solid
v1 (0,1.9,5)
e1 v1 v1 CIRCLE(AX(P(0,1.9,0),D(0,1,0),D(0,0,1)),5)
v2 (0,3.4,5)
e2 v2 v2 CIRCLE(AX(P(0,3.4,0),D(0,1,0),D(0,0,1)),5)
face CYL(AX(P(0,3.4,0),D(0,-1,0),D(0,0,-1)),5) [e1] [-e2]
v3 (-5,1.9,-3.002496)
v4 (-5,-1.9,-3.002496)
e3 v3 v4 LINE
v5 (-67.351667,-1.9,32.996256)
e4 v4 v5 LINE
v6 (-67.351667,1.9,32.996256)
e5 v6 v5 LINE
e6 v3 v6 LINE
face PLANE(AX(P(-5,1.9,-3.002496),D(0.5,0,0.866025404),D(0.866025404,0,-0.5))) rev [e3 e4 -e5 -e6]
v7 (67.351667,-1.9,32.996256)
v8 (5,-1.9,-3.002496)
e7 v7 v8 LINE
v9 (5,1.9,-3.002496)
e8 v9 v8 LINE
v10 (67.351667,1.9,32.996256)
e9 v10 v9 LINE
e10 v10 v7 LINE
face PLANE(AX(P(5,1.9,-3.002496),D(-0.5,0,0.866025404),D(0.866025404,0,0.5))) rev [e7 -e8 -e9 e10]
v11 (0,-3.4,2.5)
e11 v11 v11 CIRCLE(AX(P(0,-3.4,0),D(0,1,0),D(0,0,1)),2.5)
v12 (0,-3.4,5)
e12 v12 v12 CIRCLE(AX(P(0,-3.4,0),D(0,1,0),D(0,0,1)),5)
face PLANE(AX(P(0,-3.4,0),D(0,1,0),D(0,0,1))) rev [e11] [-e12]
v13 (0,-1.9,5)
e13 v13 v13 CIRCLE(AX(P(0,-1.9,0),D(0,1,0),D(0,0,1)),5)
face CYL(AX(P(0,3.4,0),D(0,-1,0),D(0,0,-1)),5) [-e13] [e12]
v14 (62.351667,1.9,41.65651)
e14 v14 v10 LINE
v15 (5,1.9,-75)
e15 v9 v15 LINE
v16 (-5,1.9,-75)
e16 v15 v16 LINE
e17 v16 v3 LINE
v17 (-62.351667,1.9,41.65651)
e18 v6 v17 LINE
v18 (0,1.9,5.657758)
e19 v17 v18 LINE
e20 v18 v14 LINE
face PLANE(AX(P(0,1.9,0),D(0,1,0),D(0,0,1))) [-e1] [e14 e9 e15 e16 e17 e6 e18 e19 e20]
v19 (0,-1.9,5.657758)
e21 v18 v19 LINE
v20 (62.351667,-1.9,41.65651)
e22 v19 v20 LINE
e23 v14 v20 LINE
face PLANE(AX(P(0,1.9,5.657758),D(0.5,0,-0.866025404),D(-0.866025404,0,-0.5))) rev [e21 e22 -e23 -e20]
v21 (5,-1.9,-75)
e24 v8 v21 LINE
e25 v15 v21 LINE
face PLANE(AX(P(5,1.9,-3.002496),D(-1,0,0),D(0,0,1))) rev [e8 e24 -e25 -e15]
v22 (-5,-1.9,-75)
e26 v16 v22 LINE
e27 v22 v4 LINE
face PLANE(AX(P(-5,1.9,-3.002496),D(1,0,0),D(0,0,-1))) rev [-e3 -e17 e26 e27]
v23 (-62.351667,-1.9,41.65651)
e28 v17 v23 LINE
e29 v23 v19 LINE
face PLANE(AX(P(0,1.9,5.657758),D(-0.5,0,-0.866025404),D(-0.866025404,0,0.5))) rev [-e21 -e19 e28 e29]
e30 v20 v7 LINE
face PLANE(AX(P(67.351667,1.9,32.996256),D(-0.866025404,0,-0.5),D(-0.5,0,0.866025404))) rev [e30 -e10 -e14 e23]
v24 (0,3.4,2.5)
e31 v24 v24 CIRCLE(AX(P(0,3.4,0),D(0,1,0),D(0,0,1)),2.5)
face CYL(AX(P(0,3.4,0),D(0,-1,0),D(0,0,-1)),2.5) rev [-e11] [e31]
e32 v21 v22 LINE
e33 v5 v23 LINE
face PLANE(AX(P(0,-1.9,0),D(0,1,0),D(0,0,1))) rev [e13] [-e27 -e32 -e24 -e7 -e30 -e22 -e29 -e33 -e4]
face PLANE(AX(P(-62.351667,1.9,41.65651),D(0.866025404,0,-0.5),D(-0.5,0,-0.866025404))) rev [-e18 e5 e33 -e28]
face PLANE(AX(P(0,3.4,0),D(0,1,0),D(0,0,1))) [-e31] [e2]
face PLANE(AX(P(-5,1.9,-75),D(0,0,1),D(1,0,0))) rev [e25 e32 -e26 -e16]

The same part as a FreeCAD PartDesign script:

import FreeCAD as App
import Part
import Sketcher
Q = App.Units.Quantity

doc = App.newDocument("Part")
body = doc.addObject("PartDesign::Body", "Body")

sketch1 = body.newObject("Sketcher::SketchObject", "Sketch")
sketch1.AttachmentSupport = (doc.getObject("XZ_Plane"), [""])
sketch1.MapMode = "FlatFace"
sketch1.addGeometry(Part.Circle(App.Vector(0, 0, 0), App.Vector(0, 0, 1), 5), False)
sketch1.addGeometry(Part.Circle(App.Vector(0, 0, 0), App.Vector(0, 0, 1), 2.5), False)
sketch1.addConstraint(Sketcher.Constraint("Coincident", 0, 3, -1, 1))
sketch1.addConstraint(Sketcher.Constraint("Coincident", 1, 3, -1, 1))
sketch1.addConstraint(Sketcher.Constraint("Diameter", 0, Q("10 mm")))
sketch1.addConstraint(Sketcher.Constraint("Diameter", 1, Q("5 mm")))
pad1 = body.newObject("PartDesign::Pad", "Pad")
pad1.Profile = sketch1
pad1.Length = 6.8
pad1.Midplane = True

sketch2 = body.newObject("Sketcher::SketchObject", "Sketch001")
sketch2.AttachmentSupport = (doc.getObject("XZ_Plane"), [""])
sketch2.MapMode = "FlatFace"
sketch2.addGeometry(Part.LineSegment(App.Vector(5, -3, 0), App.Vector(5, -75, 0)), False)
sketch2.addGeometry(Part.LineSegment(App.Vector(5, -75, 0), App.Vector(-5, -75, 0)), False)
sketch2.addGeometry(Part.LineSegment(App.Vector(-5, -75, 0), App.Vector(-5, -3, 0)), False)
sketch2.addGeometry(Part.LineSegment(App.Vector(-5, -3, 0), App.Vector(-67, 33, 0)), False)
sketch2.addGeometry(Part.LineSegment(App.Vector(-67, 33, 0), App.Vector(-62, 42, 0)), False)
sketch2.addGeometry(Part.LineSegment(App.Vector(-62, 42, 0), App.Vector(0, 6, 0)), False)
sketch2.addGeometry(Part.LineSegment(App.Vector(0, 6, 0), App.Vector(62, 42, 0)), False)
sketch2.addGeometry(Part.LineSegment(App.Vector(62, 42, 0), App.Vector(67, 33, 0)), False)
sketch2.addGeometry(Part.LineSegment(App.Vector(67, 33, 0), App.Vector(5, -3, 0)), False)
sketch2.addGeometry(Part.Circle(App.Vector(0, 0, 0), App.Vector(0, 0, 1), 5), False)
sketch2.addConstraint(Sketcher.Constraint("Coincident", 0, 2, 1, 1))
sketch2.addConstraint(Sketcher.Constraint("Coincident", 1, 2, 2, 1))
sketch2.addConstraint(Sketcher.Constraint("Coincident", 2, 2, 3, 1))
sketch2.addConstraint(Sketcher.Constraint("Coincident", 3, 2, 4, 1))
sketch2.addConstraint(Sketcher.Constraint("Coincident", 4, 2, 5, 1))
sketch2.addConstraint(Sketcher.Constraint("Coincident", 5, 2, 6, 1))
sketch2.addConstraint(Sketcher.Constraint("Coincident", 6, 2, 7, 1))
sketch2.addConstraint(Sketcher.Constraint("Coincident", 7, 2, 8, 1))
sketch2.addConstraint(Sketcher.Constraint("Coincident", 8, 2, 0, 1))
sketch2.addConstraint(Sketcher.Constraint("Vertical", 0))
sketch2.addConstraint(Sketcher.Constraint("Horizontal", 1))
sketch2.addConstraint(Sketcher.Constraint("Vertical", 2))
sketch2.addConstraint(Sketcher.Constraint("Coincident", 9, 3, -1, 1))
sketch2.addConstraint(Sketcher.Constraint("Symmetric", 4, 2, 6, 2, -2))
sketch2.addConstraint(Sketcher.Constraint("Symmetric", 3, 2, 7, 2, -2))
sketch2.addConstraint(Sketcher.Constraint("Symmetric", 2, 2, 8, 2, -2))
sketch2.addConstraint(Sketcher.Constraint("PointOnObject", 5, 2, -2))
sketch2.addConstraint(Sketcher.Constraint("Perpendicular", 3, 4))
sketch2.addConstraint(Sketcher.Constraint("Perpendicular", 4, 5))
sketch2.addConstraint(Sketcher.Constraint("Equal", 3, 5))
sketch2.addConstraint(Sketcher.Constraint("Diameter", 9, Q("10 mm")))
sketch2.addConstraint(Sketcher.Constraint("DistanceX", 1, 2, 1, 1, Q("10 mm")))
sketch2.addConstraint(Sketcher.Constraint("Angle", 3, Q("150 deg")))
sketch2.addConstraint(Sketcher.Constraint("DistanceY", 0, 2, -1, 1, Q("75 mm")))
sketch2.addConstraint(Sketcher.Constraint("DistanceY", 0, 2, 0, 1, Q("71.997504 mm")))
sketch2.addConstraint(Sketcher.Constraint("DistanceY", -1, 1, 4, 2, Q("41.65651 mm")))
pad2 = body.newObject("PartDesign::Pad", "Pad001")
pad2.Profile = sketch2
pad2.Length = 3.8
pad2.Midplane = True

doc.recompute()
